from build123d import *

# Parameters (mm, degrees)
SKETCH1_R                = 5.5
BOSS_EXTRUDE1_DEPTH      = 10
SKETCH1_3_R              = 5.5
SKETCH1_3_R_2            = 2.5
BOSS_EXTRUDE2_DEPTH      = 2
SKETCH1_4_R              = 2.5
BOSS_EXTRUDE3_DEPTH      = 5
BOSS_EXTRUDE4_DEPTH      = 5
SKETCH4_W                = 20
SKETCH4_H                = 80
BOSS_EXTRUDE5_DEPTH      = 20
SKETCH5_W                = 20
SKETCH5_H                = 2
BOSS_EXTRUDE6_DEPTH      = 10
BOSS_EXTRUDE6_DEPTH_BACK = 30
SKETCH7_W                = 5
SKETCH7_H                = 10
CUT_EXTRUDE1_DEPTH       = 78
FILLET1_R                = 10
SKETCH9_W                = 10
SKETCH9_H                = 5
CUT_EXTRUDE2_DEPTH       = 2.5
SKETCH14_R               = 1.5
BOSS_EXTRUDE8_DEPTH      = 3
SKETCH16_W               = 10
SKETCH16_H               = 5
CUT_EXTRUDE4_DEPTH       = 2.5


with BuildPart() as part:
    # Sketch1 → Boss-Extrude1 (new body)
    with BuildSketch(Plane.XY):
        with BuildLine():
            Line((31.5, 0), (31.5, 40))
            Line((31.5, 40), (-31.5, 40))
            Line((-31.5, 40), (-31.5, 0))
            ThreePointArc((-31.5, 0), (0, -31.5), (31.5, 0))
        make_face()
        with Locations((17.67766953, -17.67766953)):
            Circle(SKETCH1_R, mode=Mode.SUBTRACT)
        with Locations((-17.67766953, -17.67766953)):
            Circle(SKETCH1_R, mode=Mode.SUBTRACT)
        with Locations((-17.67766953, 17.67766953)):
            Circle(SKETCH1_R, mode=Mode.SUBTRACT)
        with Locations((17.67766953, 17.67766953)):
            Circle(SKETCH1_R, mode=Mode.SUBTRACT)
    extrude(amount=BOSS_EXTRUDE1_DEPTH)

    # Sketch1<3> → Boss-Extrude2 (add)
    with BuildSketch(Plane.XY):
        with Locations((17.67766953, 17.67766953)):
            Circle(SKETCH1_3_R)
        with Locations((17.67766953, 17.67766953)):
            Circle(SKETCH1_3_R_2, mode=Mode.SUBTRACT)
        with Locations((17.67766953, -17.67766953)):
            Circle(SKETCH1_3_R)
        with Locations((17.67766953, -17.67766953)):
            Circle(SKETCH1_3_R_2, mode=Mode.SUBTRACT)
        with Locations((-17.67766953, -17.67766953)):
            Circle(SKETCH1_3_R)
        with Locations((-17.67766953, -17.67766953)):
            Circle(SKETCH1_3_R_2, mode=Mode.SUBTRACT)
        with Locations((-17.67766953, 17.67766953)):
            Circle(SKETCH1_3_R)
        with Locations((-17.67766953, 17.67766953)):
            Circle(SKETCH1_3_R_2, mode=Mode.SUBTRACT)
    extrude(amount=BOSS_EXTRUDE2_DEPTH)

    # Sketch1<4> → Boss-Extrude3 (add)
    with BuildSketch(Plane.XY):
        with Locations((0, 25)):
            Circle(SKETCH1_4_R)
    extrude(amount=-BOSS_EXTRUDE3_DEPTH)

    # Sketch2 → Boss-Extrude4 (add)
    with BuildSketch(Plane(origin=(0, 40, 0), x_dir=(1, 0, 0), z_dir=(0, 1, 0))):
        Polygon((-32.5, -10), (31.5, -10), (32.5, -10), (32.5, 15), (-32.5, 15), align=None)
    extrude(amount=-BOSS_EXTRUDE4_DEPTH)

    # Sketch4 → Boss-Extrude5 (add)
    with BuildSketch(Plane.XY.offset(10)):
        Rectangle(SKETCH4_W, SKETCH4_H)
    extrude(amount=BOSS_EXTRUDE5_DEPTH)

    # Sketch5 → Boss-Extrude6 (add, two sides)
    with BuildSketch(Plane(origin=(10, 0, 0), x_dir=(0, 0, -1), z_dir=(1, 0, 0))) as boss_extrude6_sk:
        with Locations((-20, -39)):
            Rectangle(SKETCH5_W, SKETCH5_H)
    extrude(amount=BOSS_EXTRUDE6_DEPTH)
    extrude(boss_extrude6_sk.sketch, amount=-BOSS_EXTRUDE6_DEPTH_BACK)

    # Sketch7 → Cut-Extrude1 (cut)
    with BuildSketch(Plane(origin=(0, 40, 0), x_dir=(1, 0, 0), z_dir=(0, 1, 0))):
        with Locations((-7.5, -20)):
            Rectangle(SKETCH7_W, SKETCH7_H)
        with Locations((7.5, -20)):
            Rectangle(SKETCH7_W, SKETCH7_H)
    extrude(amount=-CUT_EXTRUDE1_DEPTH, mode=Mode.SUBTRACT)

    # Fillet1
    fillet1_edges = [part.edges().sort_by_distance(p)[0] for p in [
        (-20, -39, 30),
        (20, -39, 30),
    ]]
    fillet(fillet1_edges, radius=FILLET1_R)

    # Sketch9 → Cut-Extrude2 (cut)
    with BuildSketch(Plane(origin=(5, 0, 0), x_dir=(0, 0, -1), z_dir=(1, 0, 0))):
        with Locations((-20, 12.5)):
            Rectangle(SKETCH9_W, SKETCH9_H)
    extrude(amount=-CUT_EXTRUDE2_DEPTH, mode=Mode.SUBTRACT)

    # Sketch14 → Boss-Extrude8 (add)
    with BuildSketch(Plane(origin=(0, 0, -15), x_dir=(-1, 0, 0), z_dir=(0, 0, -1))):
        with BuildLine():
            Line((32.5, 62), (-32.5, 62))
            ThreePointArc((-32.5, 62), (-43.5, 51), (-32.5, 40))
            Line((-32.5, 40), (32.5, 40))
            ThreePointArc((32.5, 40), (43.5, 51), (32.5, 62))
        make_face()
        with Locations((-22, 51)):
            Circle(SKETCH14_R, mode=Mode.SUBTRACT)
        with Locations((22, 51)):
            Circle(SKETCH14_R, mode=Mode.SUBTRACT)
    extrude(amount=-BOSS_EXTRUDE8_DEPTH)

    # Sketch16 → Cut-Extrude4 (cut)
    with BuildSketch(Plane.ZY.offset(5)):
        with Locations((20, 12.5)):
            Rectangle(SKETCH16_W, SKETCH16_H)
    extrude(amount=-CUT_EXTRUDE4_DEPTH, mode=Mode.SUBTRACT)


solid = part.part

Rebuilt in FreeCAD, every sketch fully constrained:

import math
import FreeCAD as App
import Part
import Sketcher

V = App.Vector
Q = App.Units.Quantity


def edges_at(feature, points):
    """Names of the edges that pass closest to the given points."""
    edges = feature.Shape.Edges
    near = lambda p: min(range(len(edges)), key=lambda i: edges[i].distToShape(Part.Vertex(*p))[0])
    return sorted({f"Edge{near(p) + 1}" for p in points})

doc = App.newDocument("Part")
params = doc.addObject("Spreadsheet::Sheet", "Params")
for row, (alias, value) in enumerate([
    ("sketch1_diameter", "11 mm"),
    ("sketch1_radius", "31.5 mm"),
    ("sketch1_height", "40 mm"),
    ("pad1_length", "10 mm"),
    ("sketch2_diameter", "11 mm"),
    ("sketch2_diameter2", "5 mm"),
    ("pad2_length", "2 mm"),
    ("sketch3_diameter", "5 mm"),
    ("pad3_length", "5 mm"),
    ("sketch4_width", "65 mm"),
    ("sketch4_height", "25 mm"),
    ("pad4_length", "5 mm"),
    ("sketch5_width", "20 mm"),
    ("sketch5_height", "80 mm"),
    ("pad5_length", "20 mm"),
    ("sketch6_width", "2 mm"),
    ("sketch6_height", "20 mm"),
    ("pad6_length", "10 mm"),
    ("pad6_length2", "30 mm"),
    ("sketch7_width", "5 mm"),
    ("sketch7_height", "10 mm"),
    ("pocket1_length", "78 mm"),
    ("fillet_radius", "10 mm"),
    ("sketch8_width", "5 mm"),
    ("sketch8_height", "10 mm"),
    ("pocket2_length", "2.5 mm"),
    ("sketch9_diameter", "3 mm"),
    ("sketch9_radius", "11 mm"),
    ("sketch9_width", "65 mm"),
    ("pad7_length", "3 mm"),
    ("sketch10_width", "5 mm"),
    ("sketch10_height", "10 mm"),
    ("pocket3_length", "2.5 mm"),
], start=1):
    params.set(f"A{row}", alias)
    params.set(f"B{row}", "=" + value)
    params.setAlias(f"B{row}", alias)

body = doc.addObject("PartDesign::Body", "Body")

# Sketch on XY plane
sketch1 = body.newObject("Sketcher::SketchObject", "Sketch")
sketch1.AttachmentSupport = (doc.getObject("XY_Plane"), [""])
sketch1.MapMode = "FlatFace"
sketch1.addGeometry(Part.LineSegment(V(31.5, 0, 0), V(31.5, 40, 0)), False)
sketch1.addGeometry(Part.LineSegment(V(31.5, 40, 0), V(-31.5, 40, 0)), False)
sketch1.addGeometry(Part.LineSegment(V(-31.5, 40, 0), V(-31.5, 0, 0)), False)
sketch1.addGeometry(Part.ArcOfCircle(Part.Circle(V(0, 0, 0), V(0, 0, 1), 31.5), math.radians(180), math.radians(360)), False)
sketch1.addGeometry(Part.Circle(V(-17.67767, -17.67767, 0), V(0, 0, 1), 5.5), False)
sketch1.addGeometry(Part.Circle(V(17.67767, -17.67767, 0), V(0, 0, 1), 5.5), False)
sketch1.addGeometry(Part.Circle(V(-17.67767, 17.67767, 0), V(0, 0, 1), 5.5), False)
sketch1.addGeometry(Part.Circle(V(17.67767, 17.67767, 0), V(0, 0, 1), 5.5), False)
sketch1.addConstraint(Sketcher.Constraint("Coincident", 0, 2, 1, 1))
sketch1.addConstraint(Sketcher.Constraint("Coincident", 1, 2, 2, 1))
sketch1.addConstraint(Sketcher.Constraint("Tangent", 2, 2, 3, 1))
sketch1.addConstraint(Sketcher.Constraint("Tangent", 3, 2, 0, 1))
sketch1.addConstraint(Sketcher.Constraint("Vertical", 0))
sketch1.addConstraint(Sketcher.Constraint("Horizontal", 1))
sketch1.addConstraint(Sketcher.Constraint("Vertical", 2))
sketch1.addConstraint(Sketcher.Constraint("Coincident", 3, 3, -1, 1))
sketch1.addConstraint(Sketcher.Constraint("Equal", 4, 5))
sketch1.addConstraint(Sketcher.Constraint("Equal", 5, 6))
sketch1.addConstraint(Sketcher.Constraint("Equal", 6, 7))
sketch1.addConstraint(Sketcher.Constraint("Symmetric", 5, 3, 6, 3, -1, 1))
sketch1.addConstraint(Sketcher.Constraint("Symmetric", 4, 3, 7, 3, -1, 1))
sketch1.addConstraint(Sketcher.Constraint("Symmetric", 4, 3, 5, 3, -2))
sketch1.addConstraint(Sketcher.Constraint("Diameter", 4, Q("11 mm")))
sketch1.addConstraint(Sketcher.Constraint("Radius", 3, Q("31.5 mm")))
sketch1.addConstraint(Sketcher.Constraint("DistanceY", 0, 1, 0, 2, Q("40 mm")))
sketch1.addConstraint(Sketcher.Constraint("DistanceX", 4, 3, -1, 1, Q("17.67767 mm")))
sketch1.addConstraint(Sketcher.Constraint("DistanceY", 4, 3, -1, 1, Q("17.67767 mm")))
sketch1.setExpression("Constraints[14]", "Params.sketch1_diameter")
sketch1.setExpression("Constraints[15]", "Params.sketch1_radius")
sketch1.setExpression("Constraints[16]", "Params.sketch1_height")
pad1 = body.newObject("PartDesign::Pad", "Pad")
pad1.Profile = sketch1
pad1.setExpression("Length", "Params.pad1_length")

# Sketch on XY plane
sketch2 = body.newObject("Sketcher::SketchObject", "Sketch001")
sketch2.AttachmentSupport = (doc.getObject("XY_Plane"), [""])
sketch2.MapMode = "FlatFace"
sketch2.addGeometry(Part.Circle(V(17.67767, 17.67767, 0), V(0, 0, 1), 5.5), False)
sketch2.addGeometry(Part.Circle(V(17.67767, 17.67767, 0), V(0, 0, 1), 2.5), False)
sketch2.addGeometry(Part.Circle(V(17.67767, -17.67767, 0), V(0, 0, 1), 5.5), False)
sketch2.addGeometry(Part.Circle(V(17.67767, -17.67767, 0), V(0, 0, 1), 2.5), False)
sketch2.addGeometry(Part.Circle(V(-17.67767, -17.67767, 0), V(0, 0, 1), 5.5), False)
sketch2.addGeometry(Part.Circle(V(-17.67767, -17.67767, 0), V(0, 0, 1), 2.5), False)
sketch2.addGeometry(Part.Circle(V(-17.67767, 17.67767, 0), V(0, 0, 1), 5.5), False)
sketch2.addGeometry(Part.Circle(V(-17.67767, 17.67767, 0), V(0, 0, 1), 2.5), False)
sketch2.addConstraint(Sketcher.Constraint("Coincident", 1, 3, 0, 3))
sketch2.addConstraint(Sketcher.Constraint("Coincident", 3, 3, 2, 3))
sketch2.addConstraint(Sketcher.Constraint("Coincident", 5, 3, 4, 3))
sketch2.addConstraint(Sketcher.Constraint("Coincident", 7, 3, 6, 3))
sketch2.addConstraint(Sketcher.Constraint("Equal", 0, 2))
sketch2.addConstraint(Sketcher.Constraint("Equal", 1, 3))
sketch2.addConstraint(Sketcher.Constraint("Equal", 2, 4))
sketch2.addConstraint(Sketcher.Constraint("Equal", 3, 5))
sketch2.addConstraint(Sketcher.Constraint("Equal", 4, 6))
sketch2.addConstraint(Sketcher.Constraint("Equal", 5, 7))
sketch2.addConstraint(Sketcher.Constraint("Symmetric", 0, 3, 4, 3, -1, 1))
sketch2.addConstraint(Sketcher.Constraint("Symmetric", 2, 3, 6, 3, -1, 1))
sketch2.addConstraint(Sketcher.Constraint("Symmetric", 2, 3, 4, 3, -2))
sketch2.addConstraint(Sketcher.Constraint("Diameter", 0, Q("11 mm")))
sketch2.addConstraint(Sketcher.Constraint("Diameter", 1, Q("5 mm")))
sketch2.addConstraint(Sketcher.Constraint("DistanceX", -1, 1, 0, 3, Q("17.67767 mm")))
sketch2.addConstraint(Sketcher.Constraint("DistanceY", -1, 1, 0, 3, Q("17.67767 mm")))
sketch2.setExpression("Constraints[13]", "Params.sketch2_diameter")
sketch2.setExpression("Constraints[14]", "Params.sketch2_diameter2")
pad2 = body.newObject("PartDesign::Pad", "Pad001")
pad2.Profile = sketch2
pad2.setExpression("Length", "Params.pad2_length")

# Sketch on XY plane
sketch3 = body.newObject("Sketcher::SketchObject", "Sketch002")
sketch3.AttachmentSupport = (doc.getObject("XY_Plane"), [""])
sketch3.MapMode = "FlatFace"
sketch3.addGeometry(Part.Circle(V(0, 25, 0), V(0, 0, 1), 2.5), False)
sketch3.addConstraint(Sketcher.Constraint("PointOnObject", 0, 3, -2))
sketch3.addConstraint(Sketcher.Constraint("Diameter", 0, Q("5 mm")))
sketch3.addConstraint(Sketcher.Constraint("DistanceY", -1, 1, 0, 3, Q("25 mm")))
sketch3.setExpression("Constraints[1]", "Params.sketch3_diameter")
pad3 = body.newObject("PartDesign::Pad", "Pad002")
pad3.Profile = sketch3
pad3.setExpression("Length", "Params.pad3_length")
pad3.Reversed = True

# Sketch on XZ plane
sketch4 = body.newObject("Sketcher::SketchObject", "Sketch003")
sketch4.AttachmentSupport = (doc.getObject("XZ_Plane"), [""])
sketch4.MapMode = "FlatFace"
sketch4.AttachmentOffset = App.Placement(V(0, 0, -40), App.Rotation())
sketch4.addGeometry(Part.LineSegment(V(-32.5, 10, 0), V(32.5, 10, 0)), False)
sketch4.addGeometry(Part.LineSegment(V(32.5, 10, 0), V(32.5, -15, 0)), False)
sketch4.addGeometry(Part.LineSegment(V(32.5, -15, 0), V(-32.5, -15, 0)), False)
sketch4.addGeometry(Part.LineSegment(V(-32.5, -15, 0), V(-32.5, 10, 0)), False)
sketch4.addConstraint(Sketcher.Constraint("Coincident", 0, 2, 1, 1))
sketch4.addConstraint(Sketcher.Constraint("Coincident", 1, 2, 2, 1))
sketch4.addConstraint(Sketcher.Constraint("Coincident", 2, 2, 3, 1))
sketch4.addConstraint(Sketcher.Constraint("Coincident", 3, 2, 0, 1))
sketch4.addConstraint(Sketcher.Constraint("Horizontal", 0))
sketch4.addConstraint(Sketcher.Constraint("Vertical", 1))
sketch4.addConstraint(Sketcher.Constraint("Horizontal", 2))
sketch4.addConstraint(Sketcher.Constraint("Vertical", 3))
sketch4.addConstraint(Sketcher.Constraint("DistanceX", 0, 1, 0, 2, Q("65 mm")))
sketch4.addConstraint(Sketcher.Constraint("DistanceY", 1, 2, 1, 1, Q("25 mm")))
sketch4.addConstraint(Sketcher.Constraint("DistanceY", -1, 1, 0, 2, Q("10 mm")))
sketch4.addConstraint(Sketcher.Constraint("DistanceX", -1, 1, 0, 2, Q("32.5 mm")))
sketch4.setExpression("Constraints[8]", "Params.sketch4_width")
sketch4.setExpression("Constraints[9]", "Params.sketch4_height")
pad4 = body.newObject("PartDesign::Pad", "Pad003")
pad4.Profile = sketch4
pad4.setExpression("Length", "Params.pad4_length")

# Sketch on XY plane
sketch5 = body.newObject("Sketcher::SketchObject", "Sketch004")
sketch5.AttachmentSupport = (doc.getObject("XY_Plane"), [""])
sketch5.MapMode = "FlatFace"
sketch5.AttachmentOffset = App.Placement(V(0, 0, 10), App.Rotation())
sketch5.addGeometry(Part.LineSegment(V(-10, 40, 0), V(-10, -40, 0)), False)
sketch5.addGeometry(Part.LineSegment(V(-10, -40, 0), V(10, -40, 0)), False)
sketch5.addGeometry(Part.LineSegment(V(10, -40, 0), V(10, 40, 0)), False)
sketch5.addGeometry(Part.LineSegment(V(10, 40, 0), V(-10, 40, 0)), False)
sketch5.addConstraint(Sketcher.Constraint("Coincident", 0, 2, 1, 1))
sketch5.addConstraint(Sketcher.Constraint("Coincident", 1, 2, 2, 1))
sketch5.addConstraint(Sketcher.Constraint("Coincident", 2, 2, 3, 1))
sketch5.addConstraint(Sketcher.Constraint("Coincident", 3, 2, 0, 1))
sketch5.addConstraint(Sketcher.Constraint("Vertical", 0))
sketch5.addConstraint(Sketcher.Constraint("Horizontal", 1))
sketch5.addConstraint(Sketcher.Constraint("Vertical", 2))
sketch5.addConstraint(Sketcher.Constraint("Horizontal", 3))
sketch5.addConstraint(Sketcher.Constraint("Symmetric", 0, 2, 2, 2, -1, 1))
sketch5.addConstraint(Sketcher.Constraint("DistanceX", 1, 1, 1, 2, Q("20 mm")))
sketch5.addConstraint(Sketcher.Constraint("DistanceY", 0, 2, 0, 1, Q("80 mm")))
sketch5.setExpression("Constraints[9]", "Params.sketch5_width")
sketch5.setExpression("Constraints[10]", "Params.sketch5_height")
pad5 = body.newObject("PartDesign::Pad", "Pad004")
pad5.Profile = sketch5
pad5.setExpression("Length", "Params.pad5_length")

# Sketch on YZ plane
sketch6 = body.newObject("Sketcher::SketchObject", "Sketch005")
sketch6.AttachmentSupport = (doc.getObject("YZ_Plane"), [""])
sketch6.MapMode = "FlatFace"
sketch6.AttachmentOffset = App.Placement(V(0, 0, 10), App.Rotation())
sketch6.addGeometry(Part.LineSegment(V(-38, 30, 0), V(-40, 30, 0)), False)
sketch6.addGeometry(Part.LineSegment(V(-40, 30, 0), V(-40, 10, 0)), False)
sketch6.addGeometry(Part.LineSegment(V(-40, 10, 0), V(-38, 10, 0)), False)
sketch6.addGeometry(Part.LineSegment(V(-38, 10, 0), V(-38, 30, 0)), False)
sketch6.addConstraint(Sketcher.Constraint("Coincident", 0, 2, 1, 1))
sketch6.addConstraint(Sketcher.Constraint("Coincident", 1, 2, 2, 1))
sketch6.addConstraint(Sketcher.Constraint("Coincident", 2, 2, 3, 1))
sketch6.addConstraint(Sketcher.Constraint("Coincident", 3, 2, 0, 1))
sketch6.addConstraint(Sketcher.Constraint("Horizontal", 0))
sketch6.addConstraint(Sketcher.Constraint("Vertical", 1))
sketch6.addConstraint(Sketcher.Constraint("Horizontal", 2))
sketch6.addConstraint(Sketcher.Constraint("Vertical", 3))
sketch6.addConstraint(Sketcher.Constraint("DistanceX", 0, 2, 0, 1, Q("2 mm")))
sketch6.addConstraint(Sketcher.Constraint("DistanceY", 1, 2, 1, 1, Q("20 mm")))
sketch6.addConstraint(Sketcher.Constraint("DistanceX", 0, 2, -1, 1, Q("40 mm")))
sketch6.addConstraint(Sketcher.Constraint("DistanceY", -1, 1, 0, 2, Q("30 mm")))
sketch6.setExpression("Constraints[8]", "Params.sketch6_width")
sketch6.setExpression("Constraints[9]", "Params.sketch6_height")
pad6 = body.newObject("PartDesign::Pad", "Pad005")
pad6.Profile = sketch6
pad6.Type = "TwoLengths"
pad6.setExpression("Length", "Params.pad6_length")
pad6.setExpression("Length2", "Params.pad6_length2")

# Sketch on XZ plane
sketch7 = body.newObject("Sketcher::SketchObject", "Sketch006")
sketch7.AttachmentSupport = (doc.getObject("XZ_Plane"), [""])
sketch7.MapMode = "FlatFace"
sketch7.AttachmentOffset = App.Placement(V(0, 0, -40), App.Rotation())
sketch7.addGeometry(Part.LineSegment(V(-10, 15, 0), V(-10, 25, 0)), False)
sketch7.addGeometry(Part.LineSegment(V(-10, 25, 0), V(-5, 25, 0)), False)
sketch7.addGeometry(Part.LineSegment(V(-5, 25, 0), V(-5, 15, 0)), False)
sketch7.addGeometry(Part.LineSegment(V(-5, 15, 0), V(-10, 15, 0)), False)
sketch7.addGeometry(Part.LineSegment(V(5, 15, 0), V(5, 25, 0)), False)
sketch7.addGeometry(Part.LineSegment(V(5, 25, 0), V(10, 25, 0)), False)
sketch7.addGeometry(Part.LineSegment(V(10, 25, 0), V(10, 15, 0)), False)
sketch7.addGeometry(Part.LineSegment(V(10, 15, 0), V(5, 15, 0)), False)
sketch7.addConstraint(Sketcher.Constraint("Coincident", 0, 2, 1, 1))
sketch7.addConstraint(Sketcher.Constraint("Coincident", 1, 2, 2, 1))
sketch7.addConstraint(Sketcher.Constraint("Coincident", 2, 2, 3, 1))
sketch7.addConstraint(Sketcher.Constraint("Coincident", 3, 2, 0, 1))
sketch7.addConstraint(Sketcher.Constraint("Coincident", 4, 2, 5, 1))
sketch7.addConstraint(Sketcher.Constraint("Coincident", 5, 2, 6, 1))
sketch7.addConstraint(Sketcher.Constraint("Coincident", 6, 2, 7, 1))
sketch7.addConstraint(Sketcher.Constraint("Coincident", 7, 2, 4, 1))
sketch7.addConstraint(Sketcher.Constraint("Vertical", 0))
sketch7.addConstraint(Sketcher.Constraint("Horizontal", 1))
sketch7.addConstraint(Sketcher.Constraint("Vertical", 2))
sketch7.addConstraint(Sketcher.Constraint("Horizontal", 3))
sketch7.addConstraint(Sketcher.Constraint("Vertical", 4))
sketch7.addConstraint(Sketcher.Constraint("Horizontal", 5))
sketch7.addConstraint(Sketcher.Constraint("Vertical", 6))
sketch7.addConstraint(Sketcher.Constraint("Horizontal", 7))
sketch7.addConstraint(Sketcher.Constraint("Symmetric", 1, 2, 4, 2, -2))
sketch7.addConstraint(Sketcher.Constraint("Symmetric", 3, 2, 6, 2, -2))
sketch7.addConstraint(Sketcher.Constraint("DistanceX", 1, 1, 1, 2, Q("5 mm")))
sketch7.addConstraint(Sketcher.Constraint("DistanceY", 0, 1, 0, 2, Q("10 mm")))
sketch7.addConstraint(Sketcher.Constraint("DistanceX", 0, 2, -1, 1, Q("10 mm")))
sketch7.addConstraint(Sketcher.Constraint("DistanceY", -1, 1, 0, 2, Q("25 mm")))
sketch7.setExpression("Constraints[18]", "Params.sketch7_width")
sketch7.setExpression("Constraints[19]", "Params.sketch7_height")
pocket1 = body.newObject("PartDesign::Pocket", "Pocket")
pocket1.Profile = sketch7
pocket1.setExpression("Length", "Params.pocket1_length")
pocket1.Reversed = True
doc.recompute()

fillet = body.newObject("PartDesign::Fillet", "Fillet")
fillet.Base = (pocket1, edges_at(pocket1, [(-20, -39, 30), (20, -39, 30)]))
fillet.setExpression("Radius", "Params.fillet_radius")

# Sketch on YZ plane
sketch8 = body.newObject("Sketcher::SketchObject", "Sketch007")
sketch8.AttachmentSupport = (doc.getObject("YZ_Plane"), [""])
sketch8.MapMode = "FlatFace"
sketch8.AttachmentOffset = App.Placement(V(0, 0, 5), App.Rotation())
sketch8.addGeometry(Part.LineSegment(V(15, 25, 0), V(10, 25, 0)), False)
sketch8.addGeometry(Part.LineSegment(V(10, 25, 0), V(10, 15, 0)), False)
sketch8.addGeometry(Part.LineSegment(V(10, 15, 0), V(15, 15, 0)), False)
sketch8.addGeometry(Part.LineSegment(V(15, 15, 0), V(15, 25, 0)), False)
sketch8.addConstraint(Sketcher.Constraint("Coincident", 0, 2, 1, 1))
sketch8.addConstraint(Sketcher.Constraint("Coincident", 1, 2, 2, 1))
sketch8.addConstraint(Sketcher.Constraint("Coincident", 2, 2, 3, 1))
sketch8.addConstraint(Sketcher.Constraint("Coincident", 3, 2, 0, 1))
sketch8.addConstraint(Sketcher.Constraint("Horizontal", 0))
sketch8.addConstraint(Sketcher.Constraint("Vertical", 1))
sketch8.addConstraint(Sketcher.Constraint("Horizontal", 2))
sketch8.addConstraint(Sketcher.Constraint("Vertical", 3))
sketch8.addConstraint(Sketcher.Constraint("DistanceX", 0, 2, 0, 1, Q("5 mm")))
sketch8.addConstraint(Sketcher.Constraint("DistanceY", 1, 2, 1, 1, Q("10 mm")))
sketch8.addConstraint(Sketcher.Constraint("DistanceX", -1, 1, 0, 2, Q("10 mm")))
sketch8.addConstraint(Sketcher.Constraint("DistanceY", -1, 1, 0, 2, Q("25 mm")))
sketch8.setExpression("Constraints[8]", "Params.sketch8_width")
sketch8.setExpression("Constraints[9]", "Params.sketch8_height")
pocket2 = body.newObject("PartDesign::Pocket", "Pocket001")
pocket2.Profile = sketch8
pocket2.setExpression("Length", "Params.pocket2_length")

# Sketch on XY plane
sketch9 = body.newObject("Sketcher::SketchObject", "Sketch008")
sketch9.AttachmentSupport = (doc.getObject("XY_Plane"), [""])
sketch9.MapMode = "FlatFace"
sketch9.AttachmentOffset = App.Placement(V(0, 0, -15), App.Rotation())
sketch9.addGeometry(Part.LineSegment(V(-32.5, 62, 0), V(32.5, 62, 0)), False)
sketch9.addGeometry(Part.ArcOfCircle(Part.Circle(V(32.5, 51, 0), V(0, 0, 1), 11), math.radians(-90), math.radians(90)), False)
sketch9.addGeometry(Part.LineSegment(V(32.5, 40, 0), V(-32.5, 40, 0)), False)
sketch9.addGeometry(Part.ArcOfCircle(Part.Circle(V(-32.5, 51, 0), V(0, 0, 1), 11), math.radians(90), math.radians(270)), False)
sketch9.addGeometry(Part.Circle(V(22, 51, 0), V(0, 0, 1), 1.5), False)
sketch9.addGeometry(Part.Circle(V(-22, 51, 0), V(0, 0, 1), 1.5), False)
sketch9.addConstraint(Sketcher.Constraint("Tangent", 0, 2, 1, 2))
sketch9.addConstraint(Sketcher.Constraint("Tangent", 1, 1, 2, 1))
sketch9.addConstraint(Sketcher.Constraint("Tangent", 2, 2, 3, 2))
sketch9.addConstraint(Sketcher.Constraint("Tangent", 3, 1, 0, 1))
sketch9.addConstraint(Sketcher.Constraint("Horizontal", 0))
sketch9.addConstraint(Sketcher.Constraint("Horizontal", 2))
sketch9.addConstraint(Sketcher.Constraint("Equal", 4, 5))
sketch9.addConstraint(Sketcher.Constraint("Symmetric", 4, 3, 5, 3, -2))
sketch9.addConstraint(Sketcher.Constraint("Horizontal", 3, 3, 4, 3))
sketch9.addConstraint(Sketcher.Constraint("Diameter", 4, Q("3 mm")))
sketch9.addConstraint(Sketcher.Constraint("Radius", 1, Q("11 mm")))
sketch9.addConstraint(Sketcher.Constraint("DistanceX", 0, 1, 0, 2, Q("65 mm")))
sketch9.addConstraint(Sketcher.Constraint("DistanceY", -1, 1, 1, 3, Q("51 mm")))
sketch9.addConstraint(Sketcher.Constraint("DistanceX", -1, 1, 4, 3, Q("22 mm")))
sketch9.addConstraint(Sketcher.Constraint("DistanceX", -1, 1, 1, 3, Q("32.5 mm")))
sketch9.setExpression("Constraints[9]", "Params.sketch9_diameter")
sketch9.setExpression("Constraints[10]", "Params.sketch9_radius")
sketch9.setExpression("Constraints[11]", "Params.sketch9_width")
pad7 = body.newObject("PartDesign::Pad", "Pad006")
pad7.Profile = sketch9
pad7.setExpression("Length", "Params.pad7_length")

# Sketch on YZ plane
sketch10 = body.newObject("Sketcher::SketchObject", "Sketch009")
sketch10.AttachmentSupport = (doc.getObject("YZ_Plane"), [""])
sketch10.MapMode = "FlatFace"
sketch10.AttachmentOffset = App.Placement(V(0, 0, -5), App.Rotation())
sketch10.addGeometry(Part.LineSegment(V(15, 15, 0), V(10, 15, 0)), False)
sketch10.addGeometry(Part.LineSegment(V(10, 15, 0), V(10, 25, 0)), False)
sketch10.addGeometry(Part.LineSegment(V(10, 25, 0), V(15, 25, 0)), False)
sketch10.addGeometry(Part.LineSegment(V(15, 25, 0), V(15, 15, 0)), False)
sketch10.addConstraint(Sketcher.Constraint("Coincident", 0, 2, 1, 1))
sketch10.addConstraint(Sketcher.Constraint("Coincident", 1, 2, 2, 1))
sketch10.addConstraint(Sketcher.Constraint("Coincident", 2, 2, 3, 1))
sketch10.addConstraint(Sketcher.Constraint("Coincident", 3, 2, 0, 1))
sketch10.addConstraint(Sketcher.Constraint("Horizontal", 0))
sketch10.addConstraint(Sketcher.Constraint("Vertical", 1))
sketch10.addConstraint(Sketcher.Constraint("Horizontal", 2))
sketch10.addConstraint(Sketcher.Constraint("Vertical", 3))
sketch10.addConstraint(Sketcher.Constraint("DistanceX", 0, 2, 0, 1, Q("5 mm")))
sketch10.addConstraint(Sketcher.Constraint("DistanceY", 1, 1, 1, 2, Q("10 mm")))
sketch10.addConstraint(Sketcher.Constraint("DistanceX", -1, 1, 0, 2, Q("10 mm")))
sketch10.addConstraint(Sketcher.Constraint("DistanceY", -1, 1, 0, 2, Q("15 mm")))
sketch10.setExpression("Constraints[8]", "Params.sketch10_width")
sketch10.setExpression("Constraints[9]", "Params.sketch10_height")
pocket3 = body.newObject("PartDesign::Pocket", "Pocket002")
pocket3.Profile = sketch10
pocket3.setExpression("Length", "Params.pocket3_length")
pocket3.Reversed = True

doc.recompute()
